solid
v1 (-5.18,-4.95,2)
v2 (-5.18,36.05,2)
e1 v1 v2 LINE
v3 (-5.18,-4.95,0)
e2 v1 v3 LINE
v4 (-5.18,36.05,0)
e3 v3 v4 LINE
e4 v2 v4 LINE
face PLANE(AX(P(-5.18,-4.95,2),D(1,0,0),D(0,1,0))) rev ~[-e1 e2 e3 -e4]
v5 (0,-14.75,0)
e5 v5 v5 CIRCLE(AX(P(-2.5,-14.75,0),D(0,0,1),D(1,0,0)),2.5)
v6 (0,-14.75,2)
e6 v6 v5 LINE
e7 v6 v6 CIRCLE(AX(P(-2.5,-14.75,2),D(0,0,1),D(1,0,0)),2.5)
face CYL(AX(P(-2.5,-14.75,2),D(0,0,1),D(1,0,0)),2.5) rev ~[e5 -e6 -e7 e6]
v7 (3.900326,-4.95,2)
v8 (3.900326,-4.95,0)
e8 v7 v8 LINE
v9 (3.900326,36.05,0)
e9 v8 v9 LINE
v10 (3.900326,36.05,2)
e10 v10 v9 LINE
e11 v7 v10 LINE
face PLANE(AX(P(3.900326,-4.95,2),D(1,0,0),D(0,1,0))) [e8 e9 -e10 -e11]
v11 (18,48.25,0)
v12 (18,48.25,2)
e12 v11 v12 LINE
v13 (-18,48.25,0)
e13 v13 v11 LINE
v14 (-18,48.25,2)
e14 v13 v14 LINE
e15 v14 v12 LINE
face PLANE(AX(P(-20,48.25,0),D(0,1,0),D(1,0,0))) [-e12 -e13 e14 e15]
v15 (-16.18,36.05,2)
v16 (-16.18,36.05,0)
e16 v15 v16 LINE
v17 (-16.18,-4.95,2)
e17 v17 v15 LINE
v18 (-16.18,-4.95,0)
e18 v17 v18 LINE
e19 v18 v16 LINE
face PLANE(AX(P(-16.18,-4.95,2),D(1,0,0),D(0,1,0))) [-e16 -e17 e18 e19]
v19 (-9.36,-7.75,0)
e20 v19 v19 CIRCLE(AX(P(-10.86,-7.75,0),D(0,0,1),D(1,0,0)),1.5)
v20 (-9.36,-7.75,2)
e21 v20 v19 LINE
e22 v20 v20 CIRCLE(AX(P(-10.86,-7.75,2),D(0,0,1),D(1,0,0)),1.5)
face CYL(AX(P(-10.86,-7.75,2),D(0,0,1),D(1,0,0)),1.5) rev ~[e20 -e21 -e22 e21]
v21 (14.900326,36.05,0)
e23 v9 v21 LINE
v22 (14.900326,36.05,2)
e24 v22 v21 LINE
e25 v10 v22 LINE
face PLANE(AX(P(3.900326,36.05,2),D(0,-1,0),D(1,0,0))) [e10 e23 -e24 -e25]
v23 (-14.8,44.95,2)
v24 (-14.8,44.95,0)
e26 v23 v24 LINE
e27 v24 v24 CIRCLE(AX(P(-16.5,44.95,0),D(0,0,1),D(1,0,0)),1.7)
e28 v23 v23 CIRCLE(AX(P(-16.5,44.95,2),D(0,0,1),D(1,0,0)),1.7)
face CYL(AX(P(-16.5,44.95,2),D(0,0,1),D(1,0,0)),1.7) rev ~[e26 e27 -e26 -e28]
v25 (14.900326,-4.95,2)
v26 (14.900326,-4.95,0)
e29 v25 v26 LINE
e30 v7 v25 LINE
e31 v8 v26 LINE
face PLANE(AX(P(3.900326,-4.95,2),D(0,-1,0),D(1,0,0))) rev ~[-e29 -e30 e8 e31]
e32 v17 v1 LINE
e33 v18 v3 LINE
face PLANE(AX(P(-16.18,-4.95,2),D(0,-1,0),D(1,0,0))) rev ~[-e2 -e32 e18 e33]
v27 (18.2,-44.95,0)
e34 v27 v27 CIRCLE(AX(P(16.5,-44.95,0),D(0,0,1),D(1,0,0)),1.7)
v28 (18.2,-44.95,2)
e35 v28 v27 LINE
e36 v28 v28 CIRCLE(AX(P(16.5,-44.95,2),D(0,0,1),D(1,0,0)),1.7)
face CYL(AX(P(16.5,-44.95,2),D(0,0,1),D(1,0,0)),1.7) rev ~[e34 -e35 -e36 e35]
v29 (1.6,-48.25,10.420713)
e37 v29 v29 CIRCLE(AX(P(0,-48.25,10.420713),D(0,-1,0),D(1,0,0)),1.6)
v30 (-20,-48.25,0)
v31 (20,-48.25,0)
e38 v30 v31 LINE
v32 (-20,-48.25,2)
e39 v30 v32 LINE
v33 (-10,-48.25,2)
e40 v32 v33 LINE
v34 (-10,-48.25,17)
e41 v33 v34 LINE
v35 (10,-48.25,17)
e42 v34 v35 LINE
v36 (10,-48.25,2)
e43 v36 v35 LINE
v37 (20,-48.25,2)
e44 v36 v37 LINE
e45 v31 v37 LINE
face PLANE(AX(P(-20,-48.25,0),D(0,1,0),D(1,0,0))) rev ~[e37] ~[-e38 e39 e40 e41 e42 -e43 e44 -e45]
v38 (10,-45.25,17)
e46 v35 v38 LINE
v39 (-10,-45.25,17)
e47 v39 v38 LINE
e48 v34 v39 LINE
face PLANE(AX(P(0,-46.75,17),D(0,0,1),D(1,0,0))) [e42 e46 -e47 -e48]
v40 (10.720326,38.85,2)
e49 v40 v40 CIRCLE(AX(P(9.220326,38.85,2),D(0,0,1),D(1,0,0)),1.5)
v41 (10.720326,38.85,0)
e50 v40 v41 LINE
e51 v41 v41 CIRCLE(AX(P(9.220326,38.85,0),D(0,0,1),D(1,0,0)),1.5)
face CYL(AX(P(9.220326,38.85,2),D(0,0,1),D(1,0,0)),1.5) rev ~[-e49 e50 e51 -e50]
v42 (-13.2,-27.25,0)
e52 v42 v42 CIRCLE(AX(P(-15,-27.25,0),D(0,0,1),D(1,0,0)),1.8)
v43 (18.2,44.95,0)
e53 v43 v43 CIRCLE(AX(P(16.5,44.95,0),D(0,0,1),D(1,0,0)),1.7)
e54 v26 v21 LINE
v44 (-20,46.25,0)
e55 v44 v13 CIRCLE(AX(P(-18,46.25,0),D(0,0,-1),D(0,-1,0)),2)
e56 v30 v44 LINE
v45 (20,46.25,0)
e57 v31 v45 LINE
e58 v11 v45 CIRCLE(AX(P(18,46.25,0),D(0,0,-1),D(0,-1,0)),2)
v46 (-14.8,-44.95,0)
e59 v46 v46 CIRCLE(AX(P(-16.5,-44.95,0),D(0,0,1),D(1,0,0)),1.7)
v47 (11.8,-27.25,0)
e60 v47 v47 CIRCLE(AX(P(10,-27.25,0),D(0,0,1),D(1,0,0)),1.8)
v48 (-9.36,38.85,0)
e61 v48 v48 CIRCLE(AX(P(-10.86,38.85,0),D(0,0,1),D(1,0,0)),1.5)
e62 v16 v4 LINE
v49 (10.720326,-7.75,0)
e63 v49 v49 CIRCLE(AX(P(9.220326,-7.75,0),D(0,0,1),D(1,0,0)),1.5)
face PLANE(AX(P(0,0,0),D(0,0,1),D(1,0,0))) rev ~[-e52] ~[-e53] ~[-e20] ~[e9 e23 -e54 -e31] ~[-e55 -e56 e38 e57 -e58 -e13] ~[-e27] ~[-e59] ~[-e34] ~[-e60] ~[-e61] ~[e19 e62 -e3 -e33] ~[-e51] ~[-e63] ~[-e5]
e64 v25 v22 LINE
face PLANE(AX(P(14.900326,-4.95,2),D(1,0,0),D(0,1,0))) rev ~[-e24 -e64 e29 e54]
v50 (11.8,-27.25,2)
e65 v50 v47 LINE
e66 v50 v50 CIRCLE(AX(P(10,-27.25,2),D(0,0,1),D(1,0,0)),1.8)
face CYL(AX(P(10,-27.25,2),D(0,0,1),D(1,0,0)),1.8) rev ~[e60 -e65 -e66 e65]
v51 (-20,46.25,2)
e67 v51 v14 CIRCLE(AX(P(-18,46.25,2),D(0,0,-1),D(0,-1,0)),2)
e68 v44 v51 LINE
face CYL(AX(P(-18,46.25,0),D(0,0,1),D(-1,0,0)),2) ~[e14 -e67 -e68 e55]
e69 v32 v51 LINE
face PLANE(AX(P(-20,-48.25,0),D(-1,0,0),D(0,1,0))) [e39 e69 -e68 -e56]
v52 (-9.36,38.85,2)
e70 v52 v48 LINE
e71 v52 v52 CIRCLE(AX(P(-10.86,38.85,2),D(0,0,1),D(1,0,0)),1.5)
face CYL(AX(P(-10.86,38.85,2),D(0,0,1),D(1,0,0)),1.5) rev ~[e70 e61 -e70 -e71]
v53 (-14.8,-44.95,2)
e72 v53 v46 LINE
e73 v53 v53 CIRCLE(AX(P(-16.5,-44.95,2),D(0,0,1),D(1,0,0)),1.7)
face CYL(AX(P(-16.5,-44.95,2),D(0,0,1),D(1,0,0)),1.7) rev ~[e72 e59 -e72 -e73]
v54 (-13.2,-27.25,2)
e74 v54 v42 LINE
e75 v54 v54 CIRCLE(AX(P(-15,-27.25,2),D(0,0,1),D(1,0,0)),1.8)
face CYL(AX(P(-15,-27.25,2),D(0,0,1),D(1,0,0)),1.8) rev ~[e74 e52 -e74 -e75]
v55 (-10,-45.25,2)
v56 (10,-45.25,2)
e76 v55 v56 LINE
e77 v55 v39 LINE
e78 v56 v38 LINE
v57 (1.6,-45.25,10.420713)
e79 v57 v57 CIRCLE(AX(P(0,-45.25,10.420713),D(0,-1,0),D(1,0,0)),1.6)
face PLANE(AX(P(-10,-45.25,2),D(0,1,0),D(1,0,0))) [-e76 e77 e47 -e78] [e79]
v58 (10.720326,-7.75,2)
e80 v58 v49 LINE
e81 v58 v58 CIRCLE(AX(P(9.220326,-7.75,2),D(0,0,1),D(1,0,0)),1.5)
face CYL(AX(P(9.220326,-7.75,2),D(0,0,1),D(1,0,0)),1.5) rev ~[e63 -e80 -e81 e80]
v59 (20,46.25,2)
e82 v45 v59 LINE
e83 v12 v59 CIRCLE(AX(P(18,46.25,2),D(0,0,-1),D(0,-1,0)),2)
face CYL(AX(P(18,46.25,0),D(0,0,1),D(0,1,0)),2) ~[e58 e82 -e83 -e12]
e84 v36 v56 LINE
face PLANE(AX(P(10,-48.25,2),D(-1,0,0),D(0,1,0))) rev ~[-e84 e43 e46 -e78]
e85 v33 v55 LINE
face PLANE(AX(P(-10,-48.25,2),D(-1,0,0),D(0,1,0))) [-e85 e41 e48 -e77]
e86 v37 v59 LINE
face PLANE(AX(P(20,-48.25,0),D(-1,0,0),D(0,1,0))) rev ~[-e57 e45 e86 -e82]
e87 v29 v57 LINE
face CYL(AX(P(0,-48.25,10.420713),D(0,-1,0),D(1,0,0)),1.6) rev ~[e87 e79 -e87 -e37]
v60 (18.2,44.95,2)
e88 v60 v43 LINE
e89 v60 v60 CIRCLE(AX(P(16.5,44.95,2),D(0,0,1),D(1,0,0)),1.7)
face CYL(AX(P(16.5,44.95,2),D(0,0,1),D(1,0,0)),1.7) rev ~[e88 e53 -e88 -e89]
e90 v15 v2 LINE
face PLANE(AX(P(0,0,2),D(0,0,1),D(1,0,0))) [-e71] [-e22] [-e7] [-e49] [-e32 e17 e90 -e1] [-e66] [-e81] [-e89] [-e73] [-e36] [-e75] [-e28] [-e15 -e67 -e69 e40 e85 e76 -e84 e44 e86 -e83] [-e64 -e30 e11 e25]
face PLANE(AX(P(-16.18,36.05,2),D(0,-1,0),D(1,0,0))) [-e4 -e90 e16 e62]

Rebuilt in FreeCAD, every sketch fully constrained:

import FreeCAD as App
import Part
import Sketcher

V = App.Vector


def edges_at(feature, points):
    """Names of the edges that pass closest to the given points."""
    edges = feature.Shape.Edges
    near = lambda p: min(range(len(edges)), key=lambda i: edges[i].distToShape(Part.Vertex(*p))[0])
    return sorted({f"Edge{near(p) + 1}" for p in points})


def add_polygon(sketch, points):
    """Adds a closed chain of lines whose ends are joined by coincident constraints."""
    first, n = sketch.GeometryCount, len(points)
    for a, b in zip(points, points[1:] + points[:1]):
        sketch.addGeometry(Part.LineSegment(App.Vector(*a, 0), App.Vector(*b, 0)), False)
    for i in range(n):
        sketch.addConstraint(Sketcher.Constraint("Coincident", first + i, 2, first + (i + 1) % n, 1))

doc = App.newDocument("Part")
body = doc.addObject("PartDesign::Body", "Body")

# Sketch on XY plane
sketch1 = body.newObject("Sketcher::SketchObject", "Sketch")
sketch1.AttachmentSupport = (doc.getObject("XY_Plane"), [""])
sketch1.MapMode = "FlatFace"
add_polygon(sketch1, [(-20, 48.25), (-20, -48.25), (20, -48.25), (20, 48.25)])  # lines 0-3
sketch1.addConstraint([
    Sketcher.Constraint("Vertical", 0),
    Sketcher.Constraint("Horizontal", 1),
    Sketcher.Constraint("Vertical", 2),
    Sketcher.Constraint("Horizontal", 3),
    Sketcher.Constraint("Symmetric", 0, 2, 2, 2, -1, 1),
    Sketcher.Constraint("DistanceX", 1, 1, 1, 2, 40.0),
    Sketcher.Constraint("DistanceY", 0, 2, 0, 1, 96.5),
])
pad1 = body.newObject("PartDesign::Pad", "Pad")
pad1.Profile = sketch1
pad1.Length = 2

# Sketch on XY plane
sketch2 = body.newObject("Sketcher::SketchObject", "Sketch001")
sketch2.AttachmentSupport = (doc.getObject("XY_Plane"), [""])
sketch2.MapMode = "FlatFace"
sketch2.AttachmentOffset = App.Placement(V(0, 0, 2), App.Rotation())
sketch2.addGeometry(Part.Circle(V(-16.5, 44.95, 0), V(0, 0, 1), 1.7), False)  # 0
sketch2.addGeometry(Part.Circle(V(16.5, 44.95, 0), V(0, 0, 1), 1.7), False)  # 1
sketch2.addGeometry(Part.Circle(V(-16.5, -44.95, 0), V(0, 0, 1), 1.7), False)  # 2
sketch2.addGeometry(Part.Circle(V(16.5, -44.95, 0), V(0, 0, 1), 1.7), False)  # 3
sketch2.addGeometry(Part.Circle(V(-10.86, 38.85, 0), V(0, 0, 1), 1.5), False)  # 4
sketch2.addGeometry(Part.Circle(V(-10.86, -7.75, 0), V(0, 0, 1), 1.5), False)  # 5
sketch2.addGeometry(Part.Circle(V(-2.5, -14.75, 0), V(0, 0, 1), 2.5), False)  # 6
sketch2.addGeometry(Part.Circle(V(-15, -27.25, 0), V(0, 0, 1), 1.8), False)  # 7
sketch2.addGeometry(Part.Circle(V(10, -27.25, 0), V(0, 0, 1), 1.8), False)  # 8
sketch2.addGeometry(Part.Circle(V(9.220326, 38.85, 0), V(0, 0, 1), 1.5), False)  # 9
sketch2.addGeometry(Part.Circle(V(9.220326, -7.75, 0), V(0, 0, 1), 1.5), False)  # 10
add_polygon(sketch2, [(-16.18, 36.05), (-16.18, -4.95), (-5.18, -4.95), (-5.18, 36.05)])  # lines 11-14
add_polygon(sketch2, [(3.900326, 36.05), (3.900326, -4.95), (14.900326, -4.95), (14.900326, 36.05)])  # lines 15-18
sketch2.addConstraint([
    Sketcher.Constraint("Vertical", 11),
    Sketcher.Constraint("Horizontal", 12),
    Sketcher.Constraint("Vertical", 13),
    Sketcher.Constraint("Horizontal", 14),
    Sketcher.Constraint("Vertical", 15),
    Sketcher.Constraint("Horizontal", 16),
    Sketcher.Constraint("Vertical", 17),
    Sketcher.Constraint("Horizontal", 18),
    Sketcher.Constraint("Equal", 0, 1),
    Sketcher.Constraint("Equal", 1, 2),
    Sketcher.Constraint("Equal", 2, 3),
    Sketcher.Constraint("Equal", 4, 5),
    Sketcher.Constraint("Equal", 7, 8),
    Sketcher.Constraint("Equal", 5, 9),
    Sketcher.Constraint("Equal", 9, 10),
    Sketcher.Constraint("Symmetric", 1, 3, 2, 3, -1, 1),
    Sketcher.Constraint("Symmetric", 0, 3, 3, 3, -1, 1),
    Sketcher.Constraint("Symmetric", 0, 3, 1, 3, -2),
    Sketcher.Constraint("Horizontal", 7, 3, 8, 3),
    Sketcher.Constraint("Horizontal", 4, 3, 9, 3),
    Sketcher.Constraint("Horizontal", 5, 3, 10, 3),
    Sketcher.Constraint("Horizontal", 12, 2, 15, 2),
    Sketcher.Constraint("Horizontal", 14, 2, 17, 2),
    Sketcher.Constraint("Vertical", 4, 3, 5, 3),
    Sketcher.Constraint("Vertical", 9, 3, 10, 3),
    Sketcher.Constraint("Equal", 14, 16),
    Sketcher.Constraint("Diameter", 4, 3.0),
    Sketcher.Constraint("Diameter", 6, 5.0),
    Sketcher.Constraint("Diameter", 0, 3.4),
    Sketcher.Constraint("Diameter", 7, 3.6),
    Sketcher.Constraint("DistanceX", 12, 1, 12, 2, 11.0),
    Sketcher.Constraint("DistanceY", 11, 2, 11, 1, 41.0),
    Sketcher.Constraint("DistanceX", 7, 3, -1, 1, 15.0),
    Sketcher.Constraint("DistanceX", -1, 1, 8, 3, 10.0),
    Sketcher.Constraint("DistanceX", 0, 3, 1, 3, 33.0),
    Sketcher.Constraint("DistanceY", 6, 3, 5, 3, 7.0),
    Sketcher.Constraint("DistanceX", 2, 3, 6, 3, 14.0),
    Sketcher.Constraint("DistanceY", 2, 3, 0, 3, 89.9),
    Sketcher.Constraint("DistanceY", 4, 3, 0, 3, 6.1),
    Sketcher.Constraint("DistanceY", 2, 3, 5, 3, 37.2),
    Sketcher.Constraint("DistanceY", 7, 3, 6, 3, 12.5),
    Sketcher.Constraint("DistanceY", 5, 3, 11, 2, 2.8),
    Sketcher.Constraint("DistanceX", 4, 3, -1, 1, 10.86),
    Sketcher.Constraint("DistanceX", 11, 2, -1, 1, 16.18),
    Sketcher.Constraint("DistanceX", 15, 2, 10, 3, 5.32),
    Sketcher.Constraint("DistanceX", -1, 1, 9, 3, 9.220326),
])
pocket1 = body.newObject("PartDesign::Pocket", "Pocket")
pocket1.Profile = sketch2
pocket1.Length = 5
doc.recompute()

fillet = body.newObject("PartDesign::Fillet", "Fillet")
fillet.Base = (pocket1, edges_at(pocket1, [(-20, 48.25, 1)]))
fillet.Radius = 2
doc.recompute()

fillet2 = body.newObject("PartDesign::Fillet", "Fillet001")
fillet2.Base = (fillet, edges_at(fillet, [(20, 48.25, 1)]))
fillet2.Radius = 2

# Sketch on XY plane
sketch3 = body.newObject("Sketcher::SketchObject", "Sketch002")
sketch3.AttachmentSupport = (doc.getObject("XY_Plane"), [""])
sketch3.MapMode = "FlatFace"
sketch3.AttachmentOffset = App.Placement(V(0, 0, 2), App.Rotation())
add_polygon(sketch3, [(-10, -45.25), (-10, -48.25), (10, -48.25), (10, -45.25)])  # lines 0-3
sketch3.addConstraint([
    Sketcher.Constraint("Vertical", 0),
    Sketcher.Constraint("Horizontal", 1),
    Sketcher.Constraint("Vertical", 2),
    Sketcher.Constraint("Horizontal", 3),
    Sketcher.Constraint("DistanceX", 1, 1, 1, 2, 20.0),
    Sketcher.Constraint("DistanceY", 0, 2, 0, 1, 3.0),
    Sketcher.Constraint("DistanceX", 0, 2, -1, 1, 10.0),
    Sketcher.Constraint("DistanceY", 0, 2, -1, 1, 48.25),
])
pad2 = body.newObject("PartDesign::Pad", "Pad001")
pad2.Profile = sketch3
pad2.Length = 15

# Sketch on XZ plane
sketch4 = body.newObject("Sketcher::SketchObject", "Sketch003")
sketch4.AttachmentSupport = (doc.getObject("XZ_Plane"), [""])
sketch4.MapMode = "FlatFace"
sketch4.AttachmentOffset = App.Placement(V(0, 0, 48.25), App.Rotation())
sketch4.addGeometry(Part.Circle(V(0, 10.420713, 0), V(0, 0, 1), 1.6), False)
sketch4.addConstraint([
    Sketcher.Constraint("PointOnObject", 0, 3, -2),
    Sketcher.Constraint("Diameter", 0, 3.2),
    Sketcher.Constraint("DistanceY", -1, 1, 0, 3, 10.420713),
])
pocket2 = body.newObject("PartDesign::Pocket", "Pocket001")
pocket2.Profile = sketch4
pocket2.Length = 5

doc.recompute()
